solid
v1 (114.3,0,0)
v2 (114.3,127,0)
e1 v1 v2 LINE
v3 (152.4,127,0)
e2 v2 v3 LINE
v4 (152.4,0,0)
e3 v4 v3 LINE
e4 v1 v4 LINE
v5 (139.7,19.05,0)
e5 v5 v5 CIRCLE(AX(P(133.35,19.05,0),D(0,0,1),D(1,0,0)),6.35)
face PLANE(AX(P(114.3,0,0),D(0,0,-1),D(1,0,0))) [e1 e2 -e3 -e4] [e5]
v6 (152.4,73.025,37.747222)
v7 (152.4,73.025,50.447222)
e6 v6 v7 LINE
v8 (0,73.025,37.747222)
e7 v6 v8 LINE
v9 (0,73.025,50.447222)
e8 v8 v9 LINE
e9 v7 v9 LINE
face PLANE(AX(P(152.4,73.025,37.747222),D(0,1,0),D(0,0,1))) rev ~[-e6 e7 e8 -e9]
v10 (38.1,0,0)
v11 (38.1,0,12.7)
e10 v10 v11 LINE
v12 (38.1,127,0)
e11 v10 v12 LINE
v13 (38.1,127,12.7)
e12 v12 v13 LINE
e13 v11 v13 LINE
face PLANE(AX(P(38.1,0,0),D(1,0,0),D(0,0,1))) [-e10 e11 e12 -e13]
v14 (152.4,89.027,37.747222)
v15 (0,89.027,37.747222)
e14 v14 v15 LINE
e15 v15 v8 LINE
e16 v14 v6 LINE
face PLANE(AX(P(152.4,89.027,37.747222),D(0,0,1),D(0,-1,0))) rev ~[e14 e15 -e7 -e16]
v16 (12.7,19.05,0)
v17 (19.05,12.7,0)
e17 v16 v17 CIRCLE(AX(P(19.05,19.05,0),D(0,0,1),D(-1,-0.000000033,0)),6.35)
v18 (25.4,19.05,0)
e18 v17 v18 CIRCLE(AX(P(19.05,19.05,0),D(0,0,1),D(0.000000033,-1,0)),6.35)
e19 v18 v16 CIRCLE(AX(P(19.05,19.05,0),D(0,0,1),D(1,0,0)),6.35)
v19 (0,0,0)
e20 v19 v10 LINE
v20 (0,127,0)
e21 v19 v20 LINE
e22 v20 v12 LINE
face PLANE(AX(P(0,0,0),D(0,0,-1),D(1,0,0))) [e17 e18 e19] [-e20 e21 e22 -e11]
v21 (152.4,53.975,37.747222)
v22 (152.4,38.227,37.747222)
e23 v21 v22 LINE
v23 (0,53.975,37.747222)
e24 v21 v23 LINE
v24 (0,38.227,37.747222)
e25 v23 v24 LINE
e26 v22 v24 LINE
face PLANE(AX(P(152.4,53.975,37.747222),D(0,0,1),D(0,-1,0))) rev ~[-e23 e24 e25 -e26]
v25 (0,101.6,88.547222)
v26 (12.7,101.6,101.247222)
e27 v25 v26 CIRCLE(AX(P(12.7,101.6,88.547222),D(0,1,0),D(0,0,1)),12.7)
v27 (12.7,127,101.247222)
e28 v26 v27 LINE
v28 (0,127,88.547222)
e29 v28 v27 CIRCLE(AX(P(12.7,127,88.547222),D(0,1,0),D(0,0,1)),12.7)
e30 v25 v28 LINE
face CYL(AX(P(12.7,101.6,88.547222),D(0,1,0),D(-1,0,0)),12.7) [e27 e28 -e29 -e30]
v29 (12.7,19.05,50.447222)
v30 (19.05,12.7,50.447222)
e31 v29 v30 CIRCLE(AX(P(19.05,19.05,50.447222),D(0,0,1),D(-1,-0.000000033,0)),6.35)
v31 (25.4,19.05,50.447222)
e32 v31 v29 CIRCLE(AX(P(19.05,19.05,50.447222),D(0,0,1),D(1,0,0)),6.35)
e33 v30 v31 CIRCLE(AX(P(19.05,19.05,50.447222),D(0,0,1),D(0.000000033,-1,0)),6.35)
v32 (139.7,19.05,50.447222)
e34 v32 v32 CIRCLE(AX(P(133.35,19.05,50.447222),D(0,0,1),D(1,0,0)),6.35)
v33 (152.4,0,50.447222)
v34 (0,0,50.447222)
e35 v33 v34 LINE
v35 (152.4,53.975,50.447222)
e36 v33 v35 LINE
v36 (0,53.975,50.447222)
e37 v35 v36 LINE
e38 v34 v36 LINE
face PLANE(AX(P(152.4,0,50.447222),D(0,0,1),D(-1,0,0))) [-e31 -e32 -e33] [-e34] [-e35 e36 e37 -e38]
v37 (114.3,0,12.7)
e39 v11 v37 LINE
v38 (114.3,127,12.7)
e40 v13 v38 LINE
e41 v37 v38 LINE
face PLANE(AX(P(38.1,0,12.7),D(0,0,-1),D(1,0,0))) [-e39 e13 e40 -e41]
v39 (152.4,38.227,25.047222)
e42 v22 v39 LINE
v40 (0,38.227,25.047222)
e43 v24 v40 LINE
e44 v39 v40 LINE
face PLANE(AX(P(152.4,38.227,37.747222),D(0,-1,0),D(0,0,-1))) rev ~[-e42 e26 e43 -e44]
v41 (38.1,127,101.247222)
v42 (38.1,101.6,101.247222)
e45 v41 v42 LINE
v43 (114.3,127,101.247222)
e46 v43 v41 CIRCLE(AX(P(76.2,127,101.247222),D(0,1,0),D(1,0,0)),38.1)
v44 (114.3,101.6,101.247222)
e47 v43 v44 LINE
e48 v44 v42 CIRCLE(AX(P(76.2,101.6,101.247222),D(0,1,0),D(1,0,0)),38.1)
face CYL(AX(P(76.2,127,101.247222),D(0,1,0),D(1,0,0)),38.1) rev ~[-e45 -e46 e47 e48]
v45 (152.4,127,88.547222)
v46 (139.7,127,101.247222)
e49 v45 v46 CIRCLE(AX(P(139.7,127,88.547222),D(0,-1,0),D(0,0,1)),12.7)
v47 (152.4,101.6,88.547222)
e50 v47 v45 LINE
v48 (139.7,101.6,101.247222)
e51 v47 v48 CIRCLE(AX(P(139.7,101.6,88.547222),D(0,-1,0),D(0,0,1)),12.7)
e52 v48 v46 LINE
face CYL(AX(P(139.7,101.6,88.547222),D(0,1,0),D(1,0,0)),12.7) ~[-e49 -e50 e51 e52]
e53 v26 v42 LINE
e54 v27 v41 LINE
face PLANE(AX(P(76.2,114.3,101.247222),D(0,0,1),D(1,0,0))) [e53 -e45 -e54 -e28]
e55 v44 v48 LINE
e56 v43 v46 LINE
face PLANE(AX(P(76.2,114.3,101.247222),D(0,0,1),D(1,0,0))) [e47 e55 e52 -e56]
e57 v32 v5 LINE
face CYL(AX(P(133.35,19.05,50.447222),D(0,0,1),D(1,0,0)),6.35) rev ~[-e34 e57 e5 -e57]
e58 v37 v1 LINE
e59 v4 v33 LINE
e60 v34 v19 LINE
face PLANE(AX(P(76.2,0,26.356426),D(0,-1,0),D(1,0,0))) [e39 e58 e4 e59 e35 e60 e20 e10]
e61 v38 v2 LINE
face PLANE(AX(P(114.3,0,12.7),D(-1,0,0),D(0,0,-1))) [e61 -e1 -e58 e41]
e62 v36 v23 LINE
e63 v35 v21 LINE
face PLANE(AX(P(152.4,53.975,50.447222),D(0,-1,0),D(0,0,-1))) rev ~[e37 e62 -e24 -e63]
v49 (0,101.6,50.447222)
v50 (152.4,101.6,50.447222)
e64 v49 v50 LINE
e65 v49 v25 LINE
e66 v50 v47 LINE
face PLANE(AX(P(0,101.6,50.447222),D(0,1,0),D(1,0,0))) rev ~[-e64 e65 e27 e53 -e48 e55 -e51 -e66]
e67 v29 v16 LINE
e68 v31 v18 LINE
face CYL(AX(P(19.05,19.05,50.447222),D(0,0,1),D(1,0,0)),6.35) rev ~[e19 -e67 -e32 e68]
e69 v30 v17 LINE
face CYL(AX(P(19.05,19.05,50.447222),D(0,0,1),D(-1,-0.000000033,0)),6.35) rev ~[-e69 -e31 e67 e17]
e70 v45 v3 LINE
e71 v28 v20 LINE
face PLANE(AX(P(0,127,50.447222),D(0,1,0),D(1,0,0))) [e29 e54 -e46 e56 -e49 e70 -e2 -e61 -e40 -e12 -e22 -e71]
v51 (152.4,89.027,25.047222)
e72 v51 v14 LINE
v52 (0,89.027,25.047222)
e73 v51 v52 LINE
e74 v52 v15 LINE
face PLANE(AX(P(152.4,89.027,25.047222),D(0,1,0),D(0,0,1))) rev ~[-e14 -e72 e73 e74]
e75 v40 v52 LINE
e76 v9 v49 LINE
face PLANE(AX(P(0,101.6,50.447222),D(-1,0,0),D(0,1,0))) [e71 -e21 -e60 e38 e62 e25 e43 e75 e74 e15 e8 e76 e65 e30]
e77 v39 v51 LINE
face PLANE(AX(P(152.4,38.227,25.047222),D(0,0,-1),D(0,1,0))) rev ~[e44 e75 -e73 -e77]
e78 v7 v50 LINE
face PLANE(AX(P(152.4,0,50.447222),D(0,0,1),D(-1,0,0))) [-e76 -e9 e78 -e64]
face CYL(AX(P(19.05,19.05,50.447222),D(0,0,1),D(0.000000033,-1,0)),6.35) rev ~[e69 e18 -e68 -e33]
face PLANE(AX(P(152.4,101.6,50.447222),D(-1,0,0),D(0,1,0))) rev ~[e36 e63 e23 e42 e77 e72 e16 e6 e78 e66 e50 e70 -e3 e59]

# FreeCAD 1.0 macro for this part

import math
import FreeCAD as App
import Part
import Sketcher
from FreeCAD import Vector
Q = App.Units.Quantity


def edges_at(feature, points):
    """Names of the edges that pass closest to the given points."""
    edges = feature.Shape.Edges
    near = lambda p: min(range(len(edges)), key=lambda i: edges[i].distToShape(Part.Vertex(*p))[0])
    return sorted({f"Edge{near(p) + 1}" for p in points})


def add_polygon(sketch, points):
    """Adds a closed chain of lines whose ends are joined by coincident constraints."""
    first, n = sketch.GeometryCount, len(points)
    for a, b in zip(points, points[1:] + points[:1]):
        sketch.addGeometry(Part.LineSegment(App.Vector(*a, 0), App.Vector(*b, 0)), False)
    for i in range(n):
        sketch.addConstraint(Sketcher.Constraint("Coincident", first + i, 2, first + (i + 1) % n, 1))

doc = App.newDocument("Part")
body = doc.addObject("PartDesign::Body", "Body")

sketch1 = doc.addObject("Sketcher::SketchObject", "Sketch")
body.addObject(sketch1)
sketch1.AttachmentSupport = (doc.XZ_Plane, [""])
sketch1.MapMode = "FlatFace"
add_polygon(sketch1, [(0, 50), (0, 0), (38, 0), (38, 13), (114, 13), (114, 0), (152, 0), (152, 50)])
sketch1.addConstraint(Sketcher.Constraint("Vertical", 0))
sketch1.addConstraint(Sketcher.Constraint("Horizontal", 1))
sketch1.addConstraint(Sketcher.Constraint("Vertical", 2))
sketch1.addConstraint(Sketcher.Constraint("Horizontal", 3))
sketch1.addConstraint(Sketcher.Constraint("Vertical", 4))
sketch1.addConstraint(Sketcher.Constraint("Horizontal", 5))
sketch1.addConstraint(Sketcher.Constraint("Vertical", 6))
sketch1.addConstraint(Sketcher.Constraint("Horizontal", 7))
sketch1.addConstraint(Sketcher.Constraint("Coincident", 0, 2, -1, 1))
sketch1.addConstraint(Sketcher.Constraint("PointOnObject", 4, 2, -1))
sketch1.addConstraint(Sketcher.Constraint("Equal", 1, 5))
sketch1.addConstraint(Sketcher.Constraint("DistanceX", 3, 1, 3, 2, Q("3 in")))
sketch1.addConstraint(Sketcher.Constraint("DistanceX", 7, 2, 7, 1, Q("6 in")))
sketch1.addConstraint(Sketcher.Constraint("DistanceY", 2, 1, 2, 2, Q("0.5 in")))
sketch1.addConstraint(Sketcher.Constraint("DistanceY", 0, 2, 0, 1, Q("50.447222 mm")))
pad1 = doc.addObject("PartDesign::Pad", "Pad")
body.addObject(pad1)
pad1.Profile = sketch1
pad1.Length = Q("5 in")
pad1.Reversed = True

sketch2 = doc.addObject("Sketcher::SketchObject", "Sketch001")
body.addObject(sketch2)
sketch2.AttachmentSupport = (doc.YZ_Plane, [""])
sketch2.MapMode = "FlatFace"
sketch2.AttachmentOffset = App.Placement(Vector(0, 0, 6 * 25.4), App.Rotation())
add_polygon(sketch2, [(73, 50), (54, 50), (54, 38), (38, 38), (38, 25), (89, 25), (89, 38), (73, 38)])
sketch2.addConstraint(Sketcher.Constraint("Horizontal", 0))
sketch2.addConstraint(Sketcher.Constraint("Vertical", 1))
sketch2.addConstraint(Sketcher.Constraint("Horizontal", 2))
sketch2.addConstraint(Sketcher.Constraint("Vertical", 3))
sketch2.addConstraint(Sketcher.Constraint("Horizontal", 4))
sketch2.addConstraint(Sketcher.Constraint("Vertical", 5))
sketch2.addConstraint(Sketcher.Constraint("Horizontal", 6))
sketch2.addConstraint(Sketcher.Constraint("Vertical", 7))
sketch2.addConstraint(Sketcher.Constraint("Horizontal", 2, 2, 5, 2))
sketch2.addConstraint(Sketcher.Constraint("Equal", 1, 3))
sketch2.addConstraint(Sketcher.Constraint("DistanceX", 4, 1, 4, 2, Q("2 in")))
sketch2.addConstraint(Sketcher.Constraint("DistanceY", 1, 2, 1, 1, Q("0.5 in")))
sketch2.addConstraint(Sketcher.Constraint("DistanceX", 0, 2, 0, 1, Q("0.75 in")))
sketch2.addConstraint(Sketcher.Constraint("DistanceX", 2, 2, 2, 1, Q("0.62 in")))
sketch2.addConstraint(Sketcher.Constraint("DistanceX", -1, 1, 0, 2, Q("2.125 in")))
sketch2.addConstraint(Sketcher.Constraint("DistanceY", -1, 1, 0, 2, Q("50.447222 mm")))
pocket1 = doc.addObject("PartDesign::Pocket", "Pocket")
body.addObject(pocket1)
pocket1.Profile = sketch2
pocket1.Type = "ThroughAll"

sketch3 = doc.addObject("Sketcher::SketchObject", "Sketch002")
body.addObject(sketch3)
sketch3.AttachmentSupport = (doc.XY_Plane, [""])
sketch3.MapMode = "FlatFace"
sketch3.AttachmentOffset = App.Placement(Vector(0, 0, 50.447222), App.Rotation())
add_polygon(sketch3, [(0, 127), (0, 102), (152, 102), (152, 127)])
sketch3.addConstraint(Sketcher.Constraint("Vertical", 0))
sketch3.addConstraint(Sketcher.Constraint("Horizontal", 1))
sketch3.addConstraint(Sketcher.Constraint("Vertical", 2))
sketch3.addConstraint(Sketcher.Constraint("Horizontal", 3))
sketch3.addConstraint(Sketcher.Constraint("PointOnObject", 0, 2, -2))
sketch3.addConstraint(Sketcher.Constraint("DistanceX", 1, 1, 1, 2, Q("6 in")))
sketch3.addConstraint(Sketcher.Constraint("DistanceY", 0, 2, 0, 1, Q("1 in")))
sketch3.addConstraint(Sketcher.Constraint("DistanceY", -1, 1, 0, 2, Q("4 in")))
pad2 = doc.addObject("PartDesign::Pad", "Pad001")
body.addObject(pad2)
pad2.Profile = sketch3
pad2.Length = Q("2 in")

sketch4 = doc.addObject("Sketcher::SketchObject", "Sketch003")
body.addObject(sketch4)
sketch4.AttachmentSupport = (doc.XZ_Plane, [""])
sketch4.MapMode = "FlatFace"
sketch4.AttachmentOffset = App.Placement(Vector(0, 0, -5 * 25.4), App.Rotation())
sketch4.addGeometry(Part.ArcOfCircle(Part.Circle(Vector(76, 101, 0), Vector(0, 0, 1), 38), math.radians(180), math.radians(360)), False)
sketch4.addGeometry(Part.LineSegment(Vector(38, 101, 0), Vector(114, 101, 0)), False)
sketch4.addConstraint(Sketcher.Constraint("Coincident", 0, 1, 1, 1))
sketch4.addConstraint(Sketcher.Constraint("Coincident", 1, 2, 0, 2))
sketch4.addConstraint(Sketcher.Constraint("Horizontal", 1))
sketch4.addConstraint(Sketcher.Constraint("Radius", 0, Q("1.5 in")))
sketch4.addConstraint(Sketcher.Constraint("DistanceX", -1, 1, 0, 3, Q("3 in")))
sketch4.addConstraint(Sketcher.Constraint("DistanceY", -1, 1, 0, 3, Q("101.247222 mm")))
sketch4.addConstraint(Sketcher.Constraint("DistanceY", -1, 1, 0, 1, Q("101.247222 mm")))
pocket2 = doc.addObject("PartDesign::Pocket", "Pocket001")
body.addObject(pocket2)
pocket2.Profile = sketch4
pocket2.Type = "ThroughAll"
pocket2.Reversed = True
doc.recompute()

fillet = doc.addObject("PartDesign::Fillet", "Fillet")
body.addObject(fillet)
fillet.Base = (pocket2, edges_at(pocket2, [(152.4, 114.3, 101.247), (0, 114.3, 101.247)]))
fillet.Radius = Q("0.5 in")

sketch5 = doc.addObject("Sketcher::SketchObject", "Sketch004")
body.addObject(sketch5)
sketch5.AttachmentSupport = (doc.XY_Plane, [""])
sketch5.MapMode = "FlatFace"
sketch5.AttachmentOffset = App.Placement(Vector(0, 0, 50.447222), App.Rotation())
sketch5.addGeometry(Part.ArcOfCircle(Part.Circle(Vector(19, 19, 0), Vector(0, 0, 1), 6), math.radians(-90), math.radians(0)), False)
sketch5.addGeometry(Part.ArcOfCircle(Part.Circle(Vector(19, 19, 0), Vector(0, 0, 1), 6), math.radians(0), math.radians(180)), False)
sketch5.addGeometry(Part.ArcOfCircle(Part.Circle(Vector(19, 19, 0), Vector(0, 0, 1), 6), math.radians(-180), math.radians(-90)), False)
sketch5.addGeometry(Part.Circle(Vector(133, 19, 0), Vector(0, 0, 1), 6), False)
sketch5.addConstraint(Sketcher.Constraint("Tangent", 0, 2, 1, 1))
sketch5.addConstraint(Sketcher.Constraint("Tangent", 1, 2, 2, 1))
sketch5.addConstraint(Sketcher.Constraint("Tangent", 2, 2, 0, 1))
sketch5.addConstraint(Sketcher.Constraint("Equal", 2, 3))
sketch5.addConstraint(Sketcher.Constraint("Horizontal", 2, 3, 3, 3))
sketch5.addConstraint(Sketcher.Constraint("Horizontal", 3, 3, 0, 2))
sketch5.addConstraint(Sketcher.Constraint("Horizontal", 0, 2, 1, 2))
sketch5.addConstraint(Sketcher.Constraint("Vertical", 1, 3, 2, 2))
sketch5.addConstraint(Sketcher.Constraint("Diameter", 3, Q("0.5 in")))
sketch5.addConstraint(Sketcher.Constraint("DistanceX", -1, 1, 0, 2, Q("1 in")))
sketch5.addConstraint(Sketcher.Constraint("DistanceY", -1, 1, 2, 2, Q("0.5 in")))
sketch5.addConstraint(Sketcher.Constraint("DistanceX", 2, 3, 3, 3, Q("4.5 in")))
pocket3 = doc.addObject("PartDesign::Pocket", "Pocket002")
body.addObject(pocket3)
pocket3.Profile = sketch5
pocket3.Type = "ThroughAll"

doc.recompute()
